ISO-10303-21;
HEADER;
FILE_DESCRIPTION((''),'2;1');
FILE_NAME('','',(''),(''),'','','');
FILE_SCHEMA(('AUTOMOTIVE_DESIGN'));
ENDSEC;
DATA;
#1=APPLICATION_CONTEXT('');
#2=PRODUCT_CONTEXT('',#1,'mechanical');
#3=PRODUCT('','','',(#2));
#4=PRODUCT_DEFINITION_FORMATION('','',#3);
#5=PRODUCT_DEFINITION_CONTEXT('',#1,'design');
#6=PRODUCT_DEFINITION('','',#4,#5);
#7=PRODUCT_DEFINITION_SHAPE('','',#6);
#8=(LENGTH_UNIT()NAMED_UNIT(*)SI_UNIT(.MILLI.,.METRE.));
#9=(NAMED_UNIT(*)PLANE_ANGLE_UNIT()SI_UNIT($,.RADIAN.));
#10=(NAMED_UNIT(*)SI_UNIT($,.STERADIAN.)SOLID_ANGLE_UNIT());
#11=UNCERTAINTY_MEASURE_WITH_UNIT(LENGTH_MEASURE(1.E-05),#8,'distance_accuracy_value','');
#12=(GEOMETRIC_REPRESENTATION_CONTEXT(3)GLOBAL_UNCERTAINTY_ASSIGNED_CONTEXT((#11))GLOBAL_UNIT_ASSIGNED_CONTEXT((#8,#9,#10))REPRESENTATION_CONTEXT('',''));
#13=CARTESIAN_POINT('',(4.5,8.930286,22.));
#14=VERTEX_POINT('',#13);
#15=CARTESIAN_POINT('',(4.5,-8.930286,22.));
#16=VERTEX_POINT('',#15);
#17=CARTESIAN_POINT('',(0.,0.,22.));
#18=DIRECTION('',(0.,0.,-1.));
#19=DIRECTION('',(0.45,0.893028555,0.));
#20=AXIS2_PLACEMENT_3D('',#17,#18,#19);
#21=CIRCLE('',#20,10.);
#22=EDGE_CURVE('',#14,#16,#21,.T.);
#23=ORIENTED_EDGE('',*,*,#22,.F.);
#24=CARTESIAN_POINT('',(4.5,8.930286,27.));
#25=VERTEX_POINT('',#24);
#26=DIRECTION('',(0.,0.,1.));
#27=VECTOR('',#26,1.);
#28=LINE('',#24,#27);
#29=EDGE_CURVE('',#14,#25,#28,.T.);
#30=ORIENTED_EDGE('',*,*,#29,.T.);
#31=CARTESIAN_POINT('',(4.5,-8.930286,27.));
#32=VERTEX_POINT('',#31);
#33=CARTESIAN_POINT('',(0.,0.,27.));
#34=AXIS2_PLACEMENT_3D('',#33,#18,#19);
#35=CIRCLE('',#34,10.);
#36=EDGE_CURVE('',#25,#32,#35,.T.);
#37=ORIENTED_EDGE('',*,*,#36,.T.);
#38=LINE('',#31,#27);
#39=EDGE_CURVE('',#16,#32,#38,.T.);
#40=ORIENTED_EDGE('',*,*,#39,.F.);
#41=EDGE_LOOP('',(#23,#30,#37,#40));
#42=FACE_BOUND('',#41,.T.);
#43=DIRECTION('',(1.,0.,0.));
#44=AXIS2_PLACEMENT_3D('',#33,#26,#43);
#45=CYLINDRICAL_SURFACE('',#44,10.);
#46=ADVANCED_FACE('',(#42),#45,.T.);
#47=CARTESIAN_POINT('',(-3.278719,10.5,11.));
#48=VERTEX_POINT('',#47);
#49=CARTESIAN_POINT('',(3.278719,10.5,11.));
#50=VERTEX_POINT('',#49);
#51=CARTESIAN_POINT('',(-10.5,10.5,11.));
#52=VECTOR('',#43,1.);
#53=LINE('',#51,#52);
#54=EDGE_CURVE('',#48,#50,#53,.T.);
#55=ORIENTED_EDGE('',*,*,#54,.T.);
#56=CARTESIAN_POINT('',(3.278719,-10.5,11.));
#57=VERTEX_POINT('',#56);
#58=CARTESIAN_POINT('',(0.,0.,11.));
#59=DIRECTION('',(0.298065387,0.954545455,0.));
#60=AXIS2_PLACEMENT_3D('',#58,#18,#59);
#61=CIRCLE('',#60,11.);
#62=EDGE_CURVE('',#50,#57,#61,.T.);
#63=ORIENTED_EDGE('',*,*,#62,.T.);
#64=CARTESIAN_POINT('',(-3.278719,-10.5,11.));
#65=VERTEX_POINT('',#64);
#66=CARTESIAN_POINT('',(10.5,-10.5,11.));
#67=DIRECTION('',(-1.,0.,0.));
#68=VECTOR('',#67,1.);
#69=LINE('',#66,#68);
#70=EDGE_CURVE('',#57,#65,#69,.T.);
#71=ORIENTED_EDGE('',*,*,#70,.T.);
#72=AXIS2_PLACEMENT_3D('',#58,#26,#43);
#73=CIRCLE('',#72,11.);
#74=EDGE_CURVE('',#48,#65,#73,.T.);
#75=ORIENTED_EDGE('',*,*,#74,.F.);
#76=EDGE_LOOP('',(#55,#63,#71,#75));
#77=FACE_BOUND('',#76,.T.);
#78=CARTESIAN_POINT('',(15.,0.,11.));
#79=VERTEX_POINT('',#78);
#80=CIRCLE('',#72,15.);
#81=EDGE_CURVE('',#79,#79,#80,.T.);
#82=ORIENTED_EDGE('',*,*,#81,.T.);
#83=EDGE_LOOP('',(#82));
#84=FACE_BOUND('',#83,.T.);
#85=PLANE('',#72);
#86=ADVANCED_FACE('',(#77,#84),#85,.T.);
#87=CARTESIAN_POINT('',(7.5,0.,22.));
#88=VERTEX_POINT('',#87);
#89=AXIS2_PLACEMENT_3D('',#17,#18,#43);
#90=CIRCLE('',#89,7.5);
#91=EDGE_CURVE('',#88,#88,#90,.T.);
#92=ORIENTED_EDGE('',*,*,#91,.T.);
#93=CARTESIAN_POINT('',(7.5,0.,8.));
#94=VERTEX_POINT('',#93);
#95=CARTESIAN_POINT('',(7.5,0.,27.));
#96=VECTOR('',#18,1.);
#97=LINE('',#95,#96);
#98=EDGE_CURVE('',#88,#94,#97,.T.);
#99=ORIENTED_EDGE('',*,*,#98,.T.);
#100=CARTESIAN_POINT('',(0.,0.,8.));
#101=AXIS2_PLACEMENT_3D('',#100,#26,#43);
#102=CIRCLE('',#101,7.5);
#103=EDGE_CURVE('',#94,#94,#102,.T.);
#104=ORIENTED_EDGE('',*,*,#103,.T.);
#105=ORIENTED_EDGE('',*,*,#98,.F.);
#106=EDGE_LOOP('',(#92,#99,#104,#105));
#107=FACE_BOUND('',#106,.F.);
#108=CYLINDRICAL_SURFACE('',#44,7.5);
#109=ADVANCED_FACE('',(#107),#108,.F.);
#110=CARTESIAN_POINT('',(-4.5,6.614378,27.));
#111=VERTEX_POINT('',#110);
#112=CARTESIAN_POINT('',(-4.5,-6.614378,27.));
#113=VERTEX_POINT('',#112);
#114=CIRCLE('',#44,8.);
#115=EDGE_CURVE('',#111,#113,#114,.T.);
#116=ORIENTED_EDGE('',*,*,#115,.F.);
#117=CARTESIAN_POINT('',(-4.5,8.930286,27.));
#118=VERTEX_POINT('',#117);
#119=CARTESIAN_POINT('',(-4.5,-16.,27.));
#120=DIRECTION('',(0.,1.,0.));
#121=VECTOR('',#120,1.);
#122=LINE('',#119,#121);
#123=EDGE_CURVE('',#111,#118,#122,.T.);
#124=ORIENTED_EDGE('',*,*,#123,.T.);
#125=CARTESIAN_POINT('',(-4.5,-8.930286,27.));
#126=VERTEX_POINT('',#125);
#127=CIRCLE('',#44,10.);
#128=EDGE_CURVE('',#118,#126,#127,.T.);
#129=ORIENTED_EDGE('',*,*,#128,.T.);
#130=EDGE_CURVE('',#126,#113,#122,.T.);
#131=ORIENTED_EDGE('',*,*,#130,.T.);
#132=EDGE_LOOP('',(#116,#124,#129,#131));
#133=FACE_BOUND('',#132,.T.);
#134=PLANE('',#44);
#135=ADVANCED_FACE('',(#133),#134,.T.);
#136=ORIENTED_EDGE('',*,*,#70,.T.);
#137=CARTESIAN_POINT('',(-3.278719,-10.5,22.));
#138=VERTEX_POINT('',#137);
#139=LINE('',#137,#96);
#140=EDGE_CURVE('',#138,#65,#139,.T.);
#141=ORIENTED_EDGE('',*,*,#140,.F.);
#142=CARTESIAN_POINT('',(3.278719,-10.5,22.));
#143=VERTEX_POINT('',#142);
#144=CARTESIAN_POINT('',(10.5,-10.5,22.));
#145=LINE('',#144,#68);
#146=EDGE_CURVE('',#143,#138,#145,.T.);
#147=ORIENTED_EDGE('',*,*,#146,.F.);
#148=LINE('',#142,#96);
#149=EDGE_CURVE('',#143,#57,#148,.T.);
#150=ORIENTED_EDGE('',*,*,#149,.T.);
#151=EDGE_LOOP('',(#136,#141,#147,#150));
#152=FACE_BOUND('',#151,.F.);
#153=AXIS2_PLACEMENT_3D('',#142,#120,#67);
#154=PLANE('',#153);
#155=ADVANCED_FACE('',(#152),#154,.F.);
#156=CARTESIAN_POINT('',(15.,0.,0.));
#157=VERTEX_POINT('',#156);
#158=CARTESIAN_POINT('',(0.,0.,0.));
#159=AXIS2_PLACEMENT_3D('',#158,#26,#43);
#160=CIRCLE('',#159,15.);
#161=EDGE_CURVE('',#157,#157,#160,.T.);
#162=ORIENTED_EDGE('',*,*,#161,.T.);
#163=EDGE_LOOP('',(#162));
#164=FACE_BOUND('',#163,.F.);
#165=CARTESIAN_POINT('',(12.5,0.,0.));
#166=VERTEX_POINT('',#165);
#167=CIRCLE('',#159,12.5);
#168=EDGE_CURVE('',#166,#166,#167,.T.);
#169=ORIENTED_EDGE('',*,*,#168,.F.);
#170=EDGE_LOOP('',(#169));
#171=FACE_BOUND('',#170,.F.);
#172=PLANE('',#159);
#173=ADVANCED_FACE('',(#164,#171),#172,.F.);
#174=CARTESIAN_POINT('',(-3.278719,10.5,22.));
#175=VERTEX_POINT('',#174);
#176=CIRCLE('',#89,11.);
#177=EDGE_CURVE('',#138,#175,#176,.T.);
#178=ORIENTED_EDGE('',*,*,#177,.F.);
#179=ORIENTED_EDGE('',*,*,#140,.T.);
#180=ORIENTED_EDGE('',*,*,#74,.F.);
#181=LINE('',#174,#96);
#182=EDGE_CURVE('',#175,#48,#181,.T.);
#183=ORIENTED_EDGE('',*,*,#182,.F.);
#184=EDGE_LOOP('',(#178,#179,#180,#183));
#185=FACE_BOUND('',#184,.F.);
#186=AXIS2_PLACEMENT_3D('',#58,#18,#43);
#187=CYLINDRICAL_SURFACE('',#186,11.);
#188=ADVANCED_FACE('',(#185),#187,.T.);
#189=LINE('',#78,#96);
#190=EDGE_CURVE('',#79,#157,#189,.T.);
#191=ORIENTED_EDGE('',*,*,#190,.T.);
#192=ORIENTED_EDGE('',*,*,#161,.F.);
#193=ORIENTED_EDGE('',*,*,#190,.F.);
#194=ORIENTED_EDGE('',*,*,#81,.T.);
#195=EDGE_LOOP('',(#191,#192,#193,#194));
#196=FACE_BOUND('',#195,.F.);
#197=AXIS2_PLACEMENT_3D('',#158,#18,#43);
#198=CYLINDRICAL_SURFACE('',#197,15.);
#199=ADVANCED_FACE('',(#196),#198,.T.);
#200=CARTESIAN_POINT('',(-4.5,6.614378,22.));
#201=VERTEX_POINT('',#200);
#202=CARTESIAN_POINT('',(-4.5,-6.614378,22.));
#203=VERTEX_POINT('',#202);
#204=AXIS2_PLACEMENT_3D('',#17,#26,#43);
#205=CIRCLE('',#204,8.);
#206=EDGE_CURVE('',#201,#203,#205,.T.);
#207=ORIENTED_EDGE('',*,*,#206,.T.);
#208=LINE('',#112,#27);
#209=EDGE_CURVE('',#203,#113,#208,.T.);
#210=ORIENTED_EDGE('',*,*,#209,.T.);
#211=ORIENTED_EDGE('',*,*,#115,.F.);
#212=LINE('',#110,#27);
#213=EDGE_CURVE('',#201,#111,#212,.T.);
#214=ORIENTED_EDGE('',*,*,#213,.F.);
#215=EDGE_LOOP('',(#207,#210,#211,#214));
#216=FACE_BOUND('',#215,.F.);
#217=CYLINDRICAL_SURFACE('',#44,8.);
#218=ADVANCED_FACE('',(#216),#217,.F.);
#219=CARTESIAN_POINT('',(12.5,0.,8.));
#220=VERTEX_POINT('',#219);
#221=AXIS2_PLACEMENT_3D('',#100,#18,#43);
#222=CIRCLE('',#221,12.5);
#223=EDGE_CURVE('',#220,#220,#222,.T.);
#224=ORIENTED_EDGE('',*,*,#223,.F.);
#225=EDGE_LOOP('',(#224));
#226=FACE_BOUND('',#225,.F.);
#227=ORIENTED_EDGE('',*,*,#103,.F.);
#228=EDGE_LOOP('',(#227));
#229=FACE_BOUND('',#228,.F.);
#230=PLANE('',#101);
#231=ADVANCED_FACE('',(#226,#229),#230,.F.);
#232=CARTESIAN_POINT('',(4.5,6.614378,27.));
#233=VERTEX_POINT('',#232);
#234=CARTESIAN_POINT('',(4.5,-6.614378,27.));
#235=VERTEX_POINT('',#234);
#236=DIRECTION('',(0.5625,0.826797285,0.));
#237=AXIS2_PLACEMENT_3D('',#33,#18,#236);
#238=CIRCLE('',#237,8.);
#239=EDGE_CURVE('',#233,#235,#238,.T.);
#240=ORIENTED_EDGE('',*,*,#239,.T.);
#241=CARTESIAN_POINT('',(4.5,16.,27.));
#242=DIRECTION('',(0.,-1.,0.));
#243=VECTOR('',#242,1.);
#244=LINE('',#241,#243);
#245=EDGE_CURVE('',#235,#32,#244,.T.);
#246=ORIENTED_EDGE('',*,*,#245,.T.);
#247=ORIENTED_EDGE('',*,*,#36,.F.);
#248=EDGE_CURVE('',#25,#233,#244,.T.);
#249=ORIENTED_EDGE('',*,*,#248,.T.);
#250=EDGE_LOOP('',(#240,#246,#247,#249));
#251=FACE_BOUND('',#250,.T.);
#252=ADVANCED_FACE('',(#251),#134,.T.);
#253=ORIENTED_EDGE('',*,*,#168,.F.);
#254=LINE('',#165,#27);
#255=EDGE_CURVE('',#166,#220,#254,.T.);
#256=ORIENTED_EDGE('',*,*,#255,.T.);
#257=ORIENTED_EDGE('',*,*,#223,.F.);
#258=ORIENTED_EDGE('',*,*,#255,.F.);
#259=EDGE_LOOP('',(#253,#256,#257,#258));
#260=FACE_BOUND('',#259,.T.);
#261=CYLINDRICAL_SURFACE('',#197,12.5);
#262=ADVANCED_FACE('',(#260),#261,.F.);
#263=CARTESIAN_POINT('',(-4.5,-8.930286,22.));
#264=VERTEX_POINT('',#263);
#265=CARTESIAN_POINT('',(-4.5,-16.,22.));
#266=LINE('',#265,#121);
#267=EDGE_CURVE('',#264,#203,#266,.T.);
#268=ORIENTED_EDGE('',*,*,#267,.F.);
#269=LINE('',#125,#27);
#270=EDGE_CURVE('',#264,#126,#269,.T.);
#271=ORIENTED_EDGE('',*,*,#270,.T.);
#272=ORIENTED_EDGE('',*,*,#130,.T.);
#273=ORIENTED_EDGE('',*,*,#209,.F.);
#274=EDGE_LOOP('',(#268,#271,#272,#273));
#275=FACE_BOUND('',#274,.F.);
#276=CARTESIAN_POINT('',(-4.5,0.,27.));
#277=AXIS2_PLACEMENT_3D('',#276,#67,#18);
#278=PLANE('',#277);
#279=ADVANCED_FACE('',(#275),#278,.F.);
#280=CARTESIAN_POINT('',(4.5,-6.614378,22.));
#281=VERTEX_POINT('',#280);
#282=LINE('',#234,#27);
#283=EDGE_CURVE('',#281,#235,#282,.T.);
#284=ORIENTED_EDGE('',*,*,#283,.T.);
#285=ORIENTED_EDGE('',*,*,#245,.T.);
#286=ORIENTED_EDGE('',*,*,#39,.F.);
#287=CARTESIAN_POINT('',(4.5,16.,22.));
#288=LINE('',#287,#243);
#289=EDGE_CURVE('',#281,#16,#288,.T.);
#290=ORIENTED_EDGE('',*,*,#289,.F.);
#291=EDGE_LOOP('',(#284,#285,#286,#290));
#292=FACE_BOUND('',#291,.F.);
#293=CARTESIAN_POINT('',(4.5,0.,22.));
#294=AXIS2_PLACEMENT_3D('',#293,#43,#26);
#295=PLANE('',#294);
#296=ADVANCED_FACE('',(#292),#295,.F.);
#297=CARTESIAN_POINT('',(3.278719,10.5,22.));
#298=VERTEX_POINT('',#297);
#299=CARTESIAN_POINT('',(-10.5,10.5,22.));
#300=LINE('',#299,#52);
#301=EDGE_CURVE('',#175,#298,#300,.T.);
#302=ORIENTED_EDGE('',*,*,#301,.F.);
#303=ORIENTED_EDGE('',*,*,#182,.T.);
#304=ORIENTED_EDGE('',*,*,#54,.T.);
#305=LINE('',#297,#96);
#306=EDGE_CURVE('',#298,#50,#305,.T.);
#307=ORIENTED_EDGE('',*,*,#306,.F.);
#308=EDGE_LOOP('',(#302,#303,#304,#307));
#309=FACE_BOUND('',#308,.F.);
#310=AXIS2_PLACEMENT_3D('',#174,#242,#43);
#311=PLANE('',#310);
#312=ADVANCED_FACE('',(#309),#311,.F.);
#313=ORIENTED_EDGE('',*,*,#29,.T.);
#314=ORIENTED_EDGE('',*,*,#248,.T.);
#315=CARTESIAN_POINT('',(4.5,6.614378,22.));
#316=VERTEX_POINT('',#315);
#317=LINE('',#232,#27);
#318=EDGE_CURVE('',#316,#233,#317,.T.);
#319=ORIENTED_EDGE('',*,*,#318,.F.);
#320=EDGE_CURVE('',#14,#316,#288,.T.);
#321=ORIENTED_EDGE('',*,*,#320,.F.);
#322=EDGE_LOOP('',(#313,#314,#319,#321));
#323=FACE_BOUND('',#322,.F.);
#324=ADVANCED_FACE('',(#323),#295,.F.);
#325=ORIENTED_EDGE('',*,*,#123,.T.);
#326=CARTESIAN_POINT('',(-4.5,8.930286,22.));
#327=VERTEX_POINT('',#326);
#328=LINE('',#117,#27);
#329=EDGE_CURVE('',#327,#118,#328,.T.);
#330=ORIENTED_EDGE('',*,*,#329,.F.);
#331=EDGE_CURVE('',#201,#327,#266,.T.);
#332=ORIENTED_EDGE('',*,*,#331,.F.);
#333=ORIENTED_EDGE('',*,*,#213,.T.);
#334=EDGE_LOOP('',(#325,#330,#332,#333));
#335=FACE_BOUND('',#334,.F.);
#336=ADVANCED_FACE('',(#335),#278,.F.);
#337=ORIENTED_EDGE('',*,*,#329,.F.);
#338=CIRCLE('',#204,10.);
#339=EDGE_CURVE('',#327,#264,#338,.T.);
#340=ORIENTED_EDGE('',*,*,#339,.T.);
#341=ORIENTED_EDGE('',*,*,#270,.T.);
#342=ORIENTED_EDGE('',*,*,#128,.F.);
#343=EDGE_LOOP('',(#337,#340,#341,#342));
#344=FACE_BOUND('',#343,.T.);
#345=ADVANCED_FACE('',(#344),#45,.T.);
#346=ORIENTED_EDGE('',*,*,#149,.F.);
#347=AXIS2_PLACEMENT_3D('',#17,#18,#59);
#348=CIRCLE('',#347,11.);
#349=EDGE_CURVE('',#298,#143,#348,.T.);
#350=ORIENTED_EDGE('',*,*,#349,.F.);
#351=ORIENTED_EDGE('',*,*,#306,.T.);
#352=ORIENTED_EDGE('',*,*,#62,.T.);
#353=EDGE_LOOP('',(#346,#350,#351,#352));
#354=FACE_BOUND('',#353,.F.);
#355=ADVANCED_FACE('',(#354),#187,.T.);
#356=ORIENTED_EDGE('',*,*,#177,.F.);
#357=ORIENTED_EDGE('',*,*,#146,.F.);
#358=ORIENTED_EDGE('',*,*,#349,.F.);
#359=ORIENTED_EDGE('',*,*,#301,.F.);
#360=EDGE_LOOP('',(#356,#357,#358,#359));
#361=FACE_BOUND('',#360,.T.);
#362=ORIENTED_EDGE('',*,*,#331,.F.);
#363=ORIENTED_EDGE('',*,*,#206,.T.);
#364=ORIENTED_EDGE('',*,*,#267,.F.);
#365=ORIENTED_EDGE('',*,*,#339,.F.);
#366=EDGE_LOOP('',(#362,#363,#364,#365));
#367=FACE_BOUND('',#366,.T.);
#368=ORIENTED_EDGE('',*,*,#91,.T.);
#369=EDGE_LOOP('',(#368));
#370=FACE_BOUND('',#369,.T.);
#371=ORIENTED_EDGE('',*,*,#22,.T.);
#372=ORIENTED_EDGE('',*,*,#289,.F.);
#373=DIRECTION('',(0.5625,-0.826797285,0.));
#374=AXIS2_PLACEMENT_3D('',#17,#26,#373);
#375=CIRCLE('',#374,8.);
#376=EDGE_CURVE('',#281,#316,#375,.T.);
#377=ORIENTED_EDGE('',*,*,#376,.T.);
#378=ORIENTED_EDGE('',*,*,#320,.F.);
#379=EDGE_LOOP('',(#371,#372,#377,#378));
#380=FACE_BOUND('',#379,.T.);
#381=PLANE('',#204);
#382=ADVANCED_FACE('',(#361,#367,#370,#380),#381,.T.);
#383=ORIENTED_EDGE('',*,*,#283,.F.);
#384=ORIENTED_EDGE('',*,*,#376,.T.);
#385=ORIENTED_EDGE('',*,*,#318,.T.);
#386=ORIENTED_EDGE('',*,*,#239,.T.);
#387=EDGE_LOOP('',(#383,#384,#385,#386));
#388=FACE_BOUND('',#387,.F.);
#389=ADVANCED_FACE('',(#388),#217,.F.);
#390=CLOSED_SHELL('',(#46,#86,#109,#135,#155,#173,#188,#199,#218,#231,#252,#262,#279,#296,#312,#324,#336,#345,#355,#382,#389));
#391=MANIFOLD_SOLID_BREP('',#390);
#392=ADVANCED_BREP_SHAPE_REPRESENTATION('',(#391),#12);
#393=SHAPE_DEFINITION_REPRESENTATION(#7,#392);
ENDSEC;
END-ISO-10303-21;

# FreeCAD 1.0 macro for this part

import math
import FreeCAD as App
import Part
import Sketcher
from FreeCAD import Vector

doc = App.newDocument("Part")
body = doc.addObject("PartDesign::Body", "Body")

# Sketch on XY plane
sketch1 = doc.addObject("Sketcher::SketchObject", "Sketch")
body.addObject(sketch1)
sketch1.AttachmentSupport = (doc.XY_Plane, [""])
sketch1.MapMode = "FlatFace"
sketch1.addGeometry(Part.Circle(Vector(0, 0, 0), Vector(0, 0, 1), 15), False)
sketch1.addGeometry(Part.Circle(Vector(0, 0, 0), Vector(0, 0, 1), 12), False)
sketch1.addConstraint(Sketcher.Constraint("Coincident", 0, 3, -1, 1))
sketch1.addConstraint(Sketcher.Constraint("Coincident", 1, 3, -1, 1))
sketch1.addConstraint(Sketcher.Constraint("Diameter", 0, 30.0))
sketch1.addConstraint(Sketcher.Constraint("Diameter", 1, 25.0))
pad1 = doc.addObject("PartDesign::Pad", "Pad")
body.addObject(pad1)
pad1.Profile = sketch1
pad1.Length = 11

# Sketch on XY plane
sketch2 = doc.addObject("Sketcher::SketchObject", "Sketch001")
body.addObject(sketch2)
sketch2.AttachmentSupport = (doc.XY_Plane, [""])
sketch2.MapMode = "FlatFace"
sketch2.AttachmentOffset = App.Placement(Vector(0, 0, 11), App.Rotation())
sketch2.addGeometry(Part.Circle(Vector(0, 0, 0), Vector(0, 0, 1), 15), False)
sketch2.addConstraint(Sketcher.Constraint("Coincident", 0, 3, -1, 1))
sketch2.addConstraint(Sketcher.Constraint("Diameter", 0, 30.0))
pad2 = doc.addObject("PartDesign::Pad", "Pad001")
body.addObject(pad2)
pad2.Profile = sketch2
pad2.Length = 3
pad2.Reversed = True

# Sketch on XY plane
sketch3 = doc.addObject("Sketcher::SketchObject", "Sketch002")
body.addObject(sketch3)
sketch3.AttachmentSupport = (doc.XY_Plane, [""])
sketch3.MapMode = "FlatFace"
sketch3.AttachmentOffset = App.Placement(Vector(0, 0, 11), App.Rotation())
sketch3.addGeometry(Part.Circle(Vector(0, 0, 0), Vector(0, 0, 1), 11), False)
sketch3.addConstraint(Sketcher.Constraint("Coincident", 0, 3, -1, 1))
sketch3.addConstraint(Sketcher.Constraint("Diameter", 0, 22.0))
pad3 = doc.addObject("PartDesign::Pad", "Pad002")
body.addObject(pad3)
pad3.Profile = sketch3
pad3.Length = 16

# Sketch on XY plane
sketch4 = doc.addObject("Sketcher::SketchObject", "Sketch003")
body.addObject(sketch4)
sketch4.AttachmentSupport = (doc.XY_Plane, [""])
sketch4.MapMode = "FlatFace"
sketch4.AttachmentOffset = App.Placement(Vector(0, 0, 27), App.Rotation())
sketch4.addGeometry(Part.Circle(Vector(0, 0, 0), Vector(0, 0, 1), 8), False)
sketch4.addConstraint(Sketcher.Constraint("Coincident", 0, 3, -1, 1))
sketch4.addConstraint(Sketcher.Constraint("Diameter", 0, 15.0))
pocket1 = doc.addObject("PartDesign::Pocket", "Pocket")
body.addObject(pocket1)
pocket1.Profile = sketch4
pocket1.Type = "ThroughAll"

# Sketch on XY plane
sketch5 = doc.addObject("Sketcher::SketchObject", "Sketch004")
body.addObject(sketch5)
sketch5.AttachmentSupport = (doc.XY_Plane, [""])
sketch5.MapMode = "FlatFace"
sketch5.AttachmentOffset = App.Placement(Vector(0, 0, 27), App.Rotation())
sketch5.addGeometry(Part.Circle(Vector(0, 0, 0), Vector(0, 0, 1), 8), False)
sketch5.addGeometry(Part.Circle(Vector(0, 0, 0), Vector(0, 0, 1), 8), False)
sketch5.addGeometry(Part.Circle(Vector(0, 0, 0), Vector(0, 0, 1), 11), False)
sketch5.addGeometry(Part.Circle(Vector(0, 0, 0), Vector(0, 0, 1), 10), False)
sketch5.addConstraint(Sketcher.Constraint("Coincident", 0, 3, -1, 1))
sketch5.addConstraint(Sketcher.Constraint("Coincident", 1, 3, -1, 1))
sketch5.addConstraint(Sketcher.Constraint("Coincident", 2, 3, -1, 1))
sketch5.addConstraint(Sketcher.Constraint("Coincident", 3, 3, -1, 1))
sketch5.addConstraint(Sketcher.Constraint("Diameter", 0, 16.0))
sketch5.addConstraint(Sketcher.Constraint("Diameter", 2, 22.0))
sketch5.addConstraint(Sketcher.Constraint("Diameter", 3, 20.0))
sketch5.addConstraint(Sketcher.Constraint("Diameter", 1, 15.0))
pocket2 = doc.addObject("PartDesign::Pocket", "Pocket001")
body.addObject(pocket2)
pocket2.Profile = sketch5
pocket2.Length = 5

# Sketch on XZ plane
sketch6 = doc.addObject("Sketcher::SketchObject", "Sketch005")
body.addObject(sketch6)
sketch6.AttachmentSupport = (doc.XZ_Plane, [""])
sketch6.MapMode = "FlatFace"
sketch6.addGeometry(Part.LineSegment(Vector(4, 22, 0), Vector(-4, 22, 0)), False)
sketch6.addGeometry(Part.LineSegment(Vector(-4, 22, 0), Vector(-4, 27, 0)), False)
sketch6.addGeometry(Part.LineSegment(Vector(-4, 27, 0), Vector(4, 27, 0)), False)
sketch6.addGeometry(Part.LineSegment(Vector(4, 27, 0), Vector(4, 22, 0)), False)
sketch6.addConstraint(Sketcher.Constraint("Coincident", 0, 2, 1, 1))
sketch6.addConstraint(Sketcher.Constraint("Coincident", 1, 2, 2, 1))
sketch6.addConstraint(Sketcher.Constraint("Coincident", 2, 2, 3, 1))
sketch6.addConstraint(Sketcher.Constraint("Coincident", 3, 2, 0, 1))
sketch6.addConstraint(Sketcher.Constraint("Horizontal", 0))
sketch6.addConstraint(Sketcher.Constraint("Vertical", 1))
sketch6.addConstraint(Sketcher.Constraint("Horizontal", 2))
sketch6.addConstraint(Sketcher.Constraint("Vertical", 3))
sketch6.addConstraint(Sketcher.Constraint("DistanceX", 0, 2, 0, 1, 9.0))
sketch6.addConstraint(Sketcher.Constraint("DistanceY", 1, 1, 1, 2, 5.0))
sketch6.addConstraint(Sketcher.Constraint("DistanceY", -1, 1, 0, 2, 22.0))
sketch6.addConstraint(Sketcher.Constraint("DistanceX", 0, 2, -1, 1, 4.5))
pocket3 = doc.addObject("PartDesign::Pocket", "Pocket002")
body.addObject(pocket3)
pocket3.Profile = sketch6
pocket3.Type = "ThroughAll"
pocket3.Midplane = True

# Sketch on XY plane
sketch7 = doc.addObject("Sketcher::SketchObject", "Sketch006")
body.addObject(sketch7)
sketch7.AttachmentSupport = (doc.XY_Plane, [""])
sketch7.MapMode = "FlatFace"
sketch7.AttachmentOffset = App.Placement(Vector(0, 0, 22), App.Rotation())
sketch7.addGeometry(Part.ArcOfCircle(Part.Circle(Vector(0, 0, 0), Vector(0, 0, 1), 11), math.radians(73), math.radians(107)), False)
sketch7.addGeometry(Part.LineSegment(Vector(-3, 10, 0), Vector(3, 10, 0)), False)
sketch7.addGeometry(Part.LineSegment(Vector(3, -10, 0), Vector(-3, -10, 0)), False)
sketch7.addGeometry(Part.ArcOfCircle(Part.Circle(Vector(0, 0, 0), Vector(0, 0, 1), 11), math.radians(-107), math.radians(-73)), False)
sketch7.addConstraint(Sketcher.Constraint("Coincident", 0, 1, 1, 2))
sketch7.addConstraint(Sketcher.Constraint("Coincident", 1, 1, 0, 2))
sketch7.addConstraint(Sketcher.Constraint("Coincident", 2, 1, 3, 2))
sketch7.addConstraint(Sketcher.Constraint("Coincident", 3, 1, 2, 2))
sketch7.addConstraint(Sketcher.Constraint("Horizontal", 1))
sketch7.addConstraint(Sketcher.Constraint("Horizontal", 2))
sketch7.addConstraint(Sketcher.Constraint("Coincident", 0, 3, -1, 1))
sketch7.addConstraint(Sketcher.Constraint("Coincident", 3, 3, -1, 1))
sketch7.addConstraint(Sketcher.Constraint("Equal", 0, 3))
sketch7.addConstraint(Sketcher.Constraint("Vertical", 0, 1, 2, 1))
sketch7.addConstraint(Sketcher.Constraint("Radius", 0, 11.0))
sketch7.addConstraint(Sketcher.Constraint("DistanceY", 2, 1, 0, 1, 21.0))
pocket4 = doc.addObject("PartDesign::Pocket", "Pocket003")
body.addObject(pocket4)
pocket4.Profile = sketch7
pocket4.Length = 11

doc.recompute()
